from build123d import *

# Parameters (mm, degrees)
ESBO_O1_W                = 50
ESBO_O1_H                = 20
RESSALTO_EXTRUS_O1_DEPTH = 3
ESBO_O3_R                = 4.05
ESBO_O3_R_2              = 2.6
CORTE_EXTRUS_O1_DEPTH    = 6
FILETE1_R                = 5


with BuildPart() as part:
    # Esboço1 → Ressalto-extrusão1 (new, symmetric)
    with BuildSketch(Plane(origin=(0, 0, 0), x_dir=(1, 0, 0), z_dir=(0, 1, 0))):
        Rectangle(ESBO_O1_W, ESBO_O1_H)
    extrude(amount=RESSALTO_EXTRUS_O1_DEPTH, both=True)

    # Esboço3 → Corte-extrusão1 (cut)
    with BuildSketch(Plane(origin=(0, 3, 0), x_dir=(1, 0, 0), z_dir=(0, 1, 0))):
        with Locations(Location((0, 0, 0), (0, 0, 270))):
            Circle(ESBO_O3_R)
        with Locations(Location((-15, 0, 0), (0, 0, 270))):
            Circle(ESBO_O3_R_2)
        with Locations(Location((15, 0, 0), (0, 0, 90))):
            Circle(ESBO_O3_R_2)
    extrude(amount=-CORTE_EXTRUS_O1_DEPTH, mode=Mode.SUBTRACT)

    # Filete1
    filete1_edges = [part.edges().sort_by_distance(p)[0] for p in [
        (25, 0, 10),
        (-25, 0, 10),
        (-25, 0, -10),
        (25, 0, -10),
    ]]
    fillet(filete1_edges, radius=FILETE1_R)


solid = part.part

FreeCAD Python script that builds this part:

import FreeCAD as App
import Part
import Sketcher

V = App.Vector


def edges_at(feature, points):
    """Names of the edges that pass closest to the given points."""
    edges = feature.Shape.Edges
    near = lambda p: min(range(len(edges)), key=lambda i: edges[i].distToShape(Part.Vertex(*p))[0])
    return sorted({f"Edge{near(p) + 1}" for p in points})

doc = App.newDocument("Part")
params = doc.addObject("Spreadsheet::Sheet", "Params")
for row, (alias, value) in enumerate([
    ("sketch1_width", "50 mm"),
    ("sketch1_height", "20 mm"),
    ("pad1_length", "6 mm"),
    ("sketch2_diameter", "8.1 mm"),
    ("sketch2_diameter2", "5.2 mm"),
    ("pocket1_length", "6 mm"),
    ("fillet_radius", "5 mm"),
], start=1):
    params.set(f"A{row}", alias)
    params.set(f"B{row}", "=" + value)
    params.setAlias(f"B{row}", alias)

body = doc.addObject("PartDesign::Body", "Body")

sketch1 = body.newObject("Sketcher::SketchObject", "Sketch")
sketch1.AttachmentSupport = (doc.getObject("XZ_Plane"), [""])
sketch1.MapMode = "FlatFace"
sketch1.addGeometry([
    Part.LineSegment(V(-25, -10, 0), V(-25, 10, 0)),
    Part.LineSegment(V(-25, 10, 0), V(25, 10, 0)),
    Part.LineSegment(V(25, 10, 0), V(25, -10, 0)),
    Part.LineSegment(V(25, -10, 0), V(-25, -10, 0)),
], False)
sketch1.addConstraint([
    Sketcher.Constraint("Coincident", 0, 2, 1, 1),
    Sketcher.Constraint("Coincident", 1, 2, 2, 1),
    Sketcher.Constraint("Coincident", 2, 2, 3, 1),
    Sketcher.Constraint("Coincident", 3, 2, 0, 1),
    Sketcher.Constraint("Vertical", 0),
    Sketcher.Constraint("Horizontal", 1),
    Sketcher.Constraint("Vertical", 2),
    Sketcher.Constraint("Horizontal", 3),
    Sketcher.Constraint("Symmetric", 0, 2, 2, 2, -1, 1),
    Sketcher.Constraint("DistanceX", 1, 1, 1, 2, 50.0),
    Sketcher.Constraint("DistanceY", 0, 1, 0, 2, 20.0),
])
sketch1.setExpression("Constraints[9]", "Params.sketch1_width")
sketch1.setExpression("Constraints[10]", "Params.sketch1_height")
pad1 = body.newObject("PartDesign::Pad", "Pad")
pad1.Profile = sketch1
pad1.setExpression("Length", "Params.pad1_length")
pad1.Midplane = True

sketch2 = body.newObject("Sketcher::SketchObject", "Sketch001")
sketch2.AttachmentSupport = (doc.getObject("XZ_Plane"), [""])
sketch2.MapMode = "FlatFace"
sketch2.AttachmentOffset = App.Placement(V(0, 0, -3), App.Rotation())
sketch2.addGeometry([
    Part.Circle(V(0, 0, 0), V(0, 0, 1), 4.05),
    Part.Circle(V(-15, 0, 0), V(0, 0, 1), 2.6),
    Part.Circle(V(15, 0, 0), V(0, 0, 1), 2.6),
], False)
sketch2.addConstraint([
    Sketcher.Constraint("Coincident", 0, 3, -1, 1),
    Sketcher.Constraint("Equal", 1, 2),
    Sketcher.Constraint("Symmetric", 1, 3, 2, 3, -1, 1),
    Sketcher.Constraint("PointOnObject", 1, 3, -1),
    Sketcher.Constraint("Diameter", 0, 8.1),
    Sketcher.Constraint("Diameter", 1, 5.2),
    Sketcher.Constraint("DistanceX", 1, 3, -1, 1, 15.0),
])
sketch2.setExpression("Constraints[4]", "Params.sketch2_diameter")
sketch2.setExpression("Constraints[5]", "Params.sketch2_diameter2")
pocket1 = body.newObject("PartDesign::Pocket", "Pocket")
pocket1.Profile = sketch2
pocket1.setExpression("Length", "Params.pocket1_length")
pocket1.Reversed = True
doc.recompute()

fillet = body.newObject("PartDesign::Fillet", "Fillet")
fillet.Base = (pocket1, edges_at(pocket1, [
    (25, 0, 10),
    (-25, 0, 10),
    (-25, 0, -10),
    (25, 0, -10),
]))
fillet.setExpression("Radius", "Params.fillet_radius")

doc.recompute()
